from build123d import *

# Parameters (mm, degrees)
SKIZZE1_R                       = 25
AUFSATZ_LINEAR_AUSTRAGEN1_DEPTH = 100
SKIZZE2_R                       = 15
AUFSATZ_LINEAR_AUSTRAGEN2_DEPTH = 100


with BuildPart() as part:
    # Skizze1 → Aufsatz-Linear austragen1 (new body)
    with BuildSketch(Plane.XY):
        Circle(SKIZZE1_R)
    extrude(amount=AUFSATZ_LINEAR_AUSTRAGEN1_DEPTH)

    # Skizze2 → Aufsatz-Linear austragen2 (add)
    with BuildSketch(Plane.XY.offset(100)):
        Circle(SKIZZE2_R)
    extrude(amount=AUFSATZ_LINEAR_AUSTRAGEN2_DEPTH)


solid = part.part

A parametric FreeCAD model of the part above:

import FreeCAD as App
import Part
import Sketcher

doc = App.newDocument("Part")
params = doc.addObject("Spreadsheet::Sheet", "Params")
for row, (alias, value) in enumerate([
    ("sketch1_diameter", "50 mm"),
    ("pad1_length", "100 mm"),
    ("sketch2_diameter", "30 mm"),
    ("pad2_length", "100 mm"),
], start=1):
    params.set(f"A{row}", alias)
    params.set(f"B{row}", "=" + value)
    params.setAlias(f"B{row}", alias)

body = doc.addObject("PartDesign::Body", "Body")

# Sketch on XY plane
sketch1 = doc.addObject("Sketcher::SketchObject", "Sketch")
body.addObject(sketch1)
sketch1.AttachmentSupport = (doc.XY_Plane, [""])
sketch1.MapMode = "FlatFace"
sketch1.addGeometry(Part.Circle(App.Vector(0, 0, 0), App.Vector(0, 0, 1), 25), False)
sketch1.addConstraint([
    Sketcher.Constraint("Coincident", 0, 3, -1, 1),
    Sketcher.Constraint("Diameter", 0, 50.0),
])
sketch1.setExpression("Constraints[1]", "Params.sketch1_diameter")
pad1 = doc.addObject("PartDesign::Pad", "Pad")
body.addObject(pad1)
pad1.Profile = sketch1
pad1.setExpression("Length", "Params.pad1_length")

# Sketch on XY plane
sketch2 = doc.addObject("Sketcher::SketchObject", "Sketch001")
body.addObject(sketch2)
sketch2.AttachmentSupport = (doc.XY_Plane, [""])
sketch2.MapMode = "FlatFace"
sketch2.AttachmentOffset = App.Placement(App.Vector(0, 0, 100), App.Rotation())
sketch2.addGeometry(Part.Circle(App.Vector(0, 0, 0), App.Vector(0, 0, 1), 15), False)
sketch2.addConstraint([
    Sketcher.Constraint("Coincident", 0, 3, -1, 1),
    Sketcher.Constraint("Diameter", 0, 30.0),
])
sketch2.setExpression("Constraints[1]", "Params.sketch2_diameter")
pad2 = doc.addObject("PartDesign::Pad", "Pad001")
body.addObject(pad2)
pad2.Profile = sketch2
pad2.setExpression("Length", "Params.pad2_length")

doc.recompute()
